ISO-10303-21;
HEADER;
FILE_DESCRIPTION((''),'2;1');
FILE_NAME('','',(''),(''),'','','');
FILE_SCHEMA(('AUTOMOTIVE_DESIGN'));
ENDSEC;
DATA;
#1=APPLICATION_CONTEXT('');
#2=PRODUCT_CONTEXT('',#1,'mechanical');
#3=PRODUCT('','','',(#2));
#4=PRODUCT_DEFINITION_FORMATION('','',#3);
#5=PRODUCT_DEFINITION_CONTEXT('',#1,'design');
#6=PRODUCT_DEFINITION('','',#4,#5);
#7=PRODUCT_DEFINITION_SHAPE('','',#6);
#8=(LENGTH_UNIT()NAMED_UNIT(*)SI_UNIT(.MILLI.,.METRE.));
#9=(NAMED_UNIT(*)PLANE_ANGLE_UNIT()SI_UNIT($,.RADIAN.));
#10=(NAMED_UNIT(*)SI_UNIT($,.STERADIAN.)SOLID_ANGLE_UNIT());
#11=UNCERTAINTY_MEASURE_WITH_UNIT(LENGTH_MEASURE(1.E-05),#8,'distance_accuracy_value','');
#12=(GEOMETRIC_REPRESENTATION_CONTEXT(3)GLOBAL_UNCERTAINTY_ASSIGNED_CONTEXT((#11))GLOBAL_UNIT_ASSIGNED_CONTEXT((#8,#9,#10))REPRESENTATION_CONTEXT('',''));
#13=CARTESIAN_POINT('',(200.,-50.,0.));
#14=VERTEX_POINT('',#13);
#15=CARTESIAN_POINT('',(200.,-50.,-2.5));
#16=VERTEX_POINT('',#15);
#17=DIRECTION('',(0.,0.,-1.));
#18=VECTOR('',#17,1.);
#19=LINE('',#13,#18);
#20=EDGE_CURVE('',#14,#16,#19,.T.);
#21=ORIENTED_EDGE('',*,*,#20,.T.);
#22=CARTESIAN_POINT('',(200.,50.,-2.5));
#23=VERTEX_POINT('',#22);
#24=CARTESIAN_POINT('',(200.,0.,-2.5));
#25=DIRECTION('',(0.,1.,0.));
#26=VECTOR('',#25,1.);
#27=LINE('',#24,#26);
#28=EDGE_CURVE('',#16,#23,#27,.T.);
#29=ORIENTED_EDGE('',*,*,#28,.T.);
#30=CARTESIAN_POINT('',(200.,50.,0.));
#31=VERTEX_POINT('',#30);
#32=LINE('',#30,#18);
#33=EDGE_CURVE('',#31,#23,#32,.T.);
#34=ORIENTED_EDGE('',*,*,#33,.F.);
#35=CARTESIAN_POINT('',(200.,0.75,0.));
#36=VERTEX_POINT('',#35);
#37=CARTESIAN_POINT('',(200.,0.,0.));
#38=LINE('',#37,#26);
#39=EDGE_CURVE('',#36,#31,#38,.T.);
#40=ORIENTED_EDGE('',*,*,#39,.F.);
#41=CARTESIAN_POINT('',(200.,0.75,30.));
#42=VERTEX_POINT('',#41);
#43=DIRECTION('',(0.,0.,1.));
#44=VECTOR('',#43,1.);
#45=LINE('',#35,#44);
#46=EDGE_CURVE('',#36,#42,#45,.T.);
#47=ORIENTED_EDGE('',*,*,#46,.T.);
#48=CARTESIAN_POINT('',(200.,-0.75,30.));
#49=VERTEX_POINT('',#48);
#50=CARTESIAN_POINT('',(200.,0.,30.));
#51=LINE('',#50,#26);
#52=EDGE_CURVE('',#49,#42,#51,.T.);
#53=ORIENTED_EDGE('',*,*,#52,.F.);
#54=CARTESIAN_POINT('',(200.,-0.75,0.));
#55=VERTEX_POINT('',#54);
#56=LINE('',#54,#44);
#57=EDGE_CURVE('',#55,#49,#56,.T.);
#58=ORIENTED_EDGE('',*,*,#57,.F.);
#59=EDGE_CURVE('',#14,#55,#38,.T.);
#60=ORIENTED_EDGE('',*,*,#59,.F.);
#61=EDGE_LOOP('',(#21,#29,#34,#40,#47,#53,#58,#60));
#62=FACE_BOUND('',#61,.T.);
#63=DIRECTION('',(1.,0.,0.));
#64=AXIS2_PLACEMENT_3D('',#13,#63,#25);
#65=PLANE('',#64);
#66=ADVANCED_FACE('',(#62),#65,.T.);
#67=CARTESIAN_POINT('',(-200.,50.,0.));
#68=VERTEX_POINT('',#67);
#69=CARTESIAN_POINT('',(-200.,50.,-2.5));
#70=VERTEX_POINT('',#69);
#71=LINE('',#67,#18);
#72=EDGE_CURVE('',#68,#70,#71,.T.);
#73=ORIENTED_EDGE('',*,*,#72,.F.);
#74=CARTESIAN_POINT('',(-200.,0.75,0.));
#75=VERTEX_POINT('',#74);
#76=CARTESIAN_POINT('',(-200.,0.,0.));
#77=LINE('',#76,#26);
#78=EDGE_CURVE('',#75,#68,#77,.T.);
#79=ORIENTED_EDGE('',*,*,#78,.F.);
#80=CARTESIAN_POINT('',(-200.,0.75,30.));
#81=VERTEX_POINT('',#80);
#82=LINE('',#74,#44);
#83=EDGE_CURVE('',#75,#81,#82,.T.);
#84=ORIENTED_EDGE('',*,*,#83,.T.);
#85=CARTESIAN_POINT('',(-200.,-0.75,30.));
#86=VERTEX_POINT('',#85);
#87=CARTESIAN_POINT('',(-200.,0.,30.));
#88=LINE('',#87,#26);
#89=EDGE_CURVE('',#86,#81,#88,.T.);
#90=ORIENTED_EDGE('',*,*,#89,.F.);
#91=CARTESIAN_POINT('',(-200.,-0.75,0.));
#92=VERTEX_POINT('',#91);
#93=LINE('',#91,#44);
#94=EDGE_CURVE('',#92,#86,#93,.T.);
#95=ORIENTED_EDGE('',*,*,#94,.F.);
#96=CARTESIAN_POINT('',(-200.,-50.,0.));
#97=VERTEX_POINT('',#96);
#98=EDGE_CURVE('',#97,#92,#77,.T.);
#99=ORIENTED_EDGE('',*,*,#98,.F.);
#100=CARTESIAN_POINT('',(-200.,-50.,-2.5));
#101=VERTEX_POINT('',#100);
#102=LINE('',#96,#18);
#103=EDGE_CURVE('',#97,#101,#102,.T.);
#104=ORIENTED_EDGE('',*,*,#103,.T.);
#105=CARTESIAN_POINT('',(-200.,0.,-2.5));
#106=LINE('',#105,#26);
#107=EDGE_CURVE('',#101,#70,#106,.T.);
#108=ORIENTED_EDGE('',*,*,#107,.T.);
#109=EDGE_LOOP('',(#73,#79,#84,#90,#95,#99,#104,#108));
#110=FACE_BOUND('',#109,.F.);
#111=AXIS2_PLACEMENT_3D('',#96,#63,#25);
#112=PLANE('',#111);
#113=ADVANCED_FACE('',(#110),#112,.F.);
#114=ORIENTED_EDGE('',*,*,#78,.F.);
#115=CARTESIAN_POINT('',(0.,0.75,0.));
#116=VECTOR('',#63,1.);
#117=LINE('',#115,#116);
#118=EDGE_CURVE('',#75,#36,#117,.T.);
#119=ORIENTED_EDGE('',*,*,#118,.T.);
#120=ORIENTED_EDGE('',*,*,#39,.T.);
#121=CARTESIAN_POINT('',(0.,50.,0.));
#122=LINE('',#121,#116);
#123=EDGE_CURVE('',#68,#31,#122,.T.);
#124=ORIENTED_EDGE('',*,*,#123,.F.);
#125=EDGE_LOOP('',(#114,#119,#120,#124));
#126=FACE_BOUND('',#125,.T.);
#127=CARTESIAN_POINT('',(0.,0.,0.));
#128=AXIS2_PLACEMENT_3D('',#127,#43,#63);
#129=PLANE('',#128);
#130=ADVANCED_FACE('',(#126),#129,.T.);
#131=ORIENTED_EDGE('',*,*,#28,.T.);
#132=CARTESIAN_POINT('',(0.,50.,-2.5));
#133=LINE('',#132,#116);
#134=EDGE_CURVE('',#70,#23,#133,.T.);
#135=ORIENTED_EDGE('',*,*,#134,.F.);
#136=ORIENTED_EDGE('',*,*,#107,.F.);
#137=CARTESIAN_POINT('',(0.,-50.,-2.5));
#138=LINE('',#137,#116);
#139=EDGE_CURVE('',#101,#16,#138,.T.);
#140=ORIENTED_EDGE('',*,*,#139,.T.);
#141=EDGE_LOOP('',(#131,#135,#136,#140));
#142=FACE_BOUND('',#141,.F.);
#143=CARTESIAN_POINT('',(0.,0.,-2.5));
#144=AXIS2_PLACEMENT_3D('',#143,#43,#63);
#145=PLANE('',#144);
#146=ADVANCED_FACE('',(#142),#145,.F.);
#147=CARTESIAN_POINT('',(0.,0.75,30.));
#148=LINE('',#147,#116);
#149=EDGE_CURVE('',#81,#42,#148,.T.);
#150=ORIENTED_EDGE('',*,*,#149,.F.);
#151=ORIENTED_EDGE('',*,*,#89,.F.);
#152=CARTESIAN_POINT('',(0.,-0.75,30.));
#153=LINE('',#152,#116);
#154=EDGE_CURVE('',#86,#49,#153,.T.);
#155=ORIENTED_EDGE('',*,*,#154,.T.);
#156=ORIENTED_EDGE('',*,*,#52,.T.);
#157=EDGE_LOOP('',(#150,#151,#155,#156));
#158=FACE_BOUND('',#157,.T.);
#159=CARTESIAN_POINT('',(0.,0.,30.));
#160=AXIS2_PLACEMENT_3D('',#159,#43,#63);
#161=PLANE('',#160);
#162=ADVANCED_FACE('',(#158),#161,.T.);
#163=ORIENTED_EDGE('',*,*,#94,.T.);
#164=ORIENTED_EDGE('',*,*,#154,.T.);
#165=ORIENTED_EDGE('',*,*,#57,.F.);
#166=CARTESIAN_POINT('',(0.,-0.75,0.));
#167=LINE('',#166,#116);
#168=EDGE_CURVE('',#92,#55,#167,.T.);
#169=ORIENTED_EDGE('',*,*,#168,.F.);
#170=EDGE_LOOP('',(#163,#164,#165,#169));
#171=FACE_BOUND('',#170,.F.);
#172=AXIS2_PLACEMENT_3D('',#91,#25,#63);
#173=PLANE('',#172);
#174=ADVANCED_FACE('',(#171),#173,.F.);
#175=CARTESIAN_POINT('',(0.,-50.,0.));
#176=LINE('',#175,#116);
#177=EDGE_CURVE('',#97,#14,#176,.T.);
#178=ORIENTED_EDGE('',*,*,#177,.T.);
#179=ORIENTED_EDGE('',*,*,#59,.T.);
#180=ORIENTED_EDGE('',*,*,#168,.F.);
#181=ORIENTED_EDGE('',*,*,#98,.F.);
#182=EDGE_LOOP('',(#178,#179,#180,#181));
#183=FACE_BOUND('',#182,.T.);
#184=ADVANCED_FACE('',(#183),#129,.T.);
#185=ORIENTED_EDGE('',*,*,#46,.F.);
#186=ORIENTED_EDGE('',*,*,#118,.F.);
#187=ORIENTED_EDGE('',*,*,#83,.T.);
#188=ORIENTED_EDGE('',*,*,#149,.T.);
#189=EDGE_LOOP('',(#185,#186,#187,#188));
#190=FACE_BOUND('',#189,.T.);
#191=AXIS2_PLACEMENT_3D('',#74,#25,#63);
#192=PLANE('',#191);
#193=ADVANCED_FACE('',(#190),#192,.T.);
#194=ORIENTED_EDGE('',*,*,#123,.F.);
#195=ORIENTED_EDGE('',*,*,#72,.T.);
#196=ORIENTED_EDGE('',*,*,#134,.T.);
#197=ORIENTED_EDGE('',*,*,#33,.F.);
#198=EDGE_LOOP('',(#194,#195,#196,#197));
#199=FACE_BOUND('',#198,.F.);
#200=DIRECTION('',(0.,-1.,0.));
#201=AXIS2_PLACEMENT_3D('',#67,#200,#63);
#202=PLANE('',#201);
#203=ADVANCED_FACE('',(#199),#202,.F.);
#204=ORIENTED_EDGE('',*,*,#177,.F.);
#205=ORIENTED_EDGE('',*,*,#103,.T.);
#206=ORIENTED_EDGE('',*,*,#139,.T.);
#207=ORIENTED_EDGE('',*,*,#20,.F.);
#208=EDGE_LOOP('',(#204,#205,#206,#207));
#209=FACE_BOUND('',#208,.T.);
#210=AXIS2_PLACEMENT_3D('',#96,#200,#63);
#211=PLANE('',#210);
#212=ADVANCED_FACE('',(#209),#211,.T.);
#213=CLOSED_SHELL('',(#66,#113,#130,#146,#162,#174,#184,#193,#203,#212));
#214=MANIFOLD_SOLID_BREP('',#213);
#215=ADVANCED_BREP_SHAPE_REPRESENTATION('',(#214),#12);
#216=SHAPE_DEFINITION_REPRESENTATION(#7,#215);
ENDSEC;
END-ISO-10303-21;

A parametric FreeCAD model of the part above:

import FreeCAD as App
import Part
import Sketcher

doc = App.newDocument("Part")
params = doc.addObject("Spreadsheet::Sheet", "Params")
for row, (alias, value) in enumerate([
    ("sketch1_width", "400 mm"),
    ("sketch1_height", "100 mm"),
    ("pad1_length", "2.5 mm"),
    ("sketch2_width", "400 mm"),
    ("sketch2_height", "1.5 mm"),
    ("pad2_length", "30 mm"),
], start=1):
    params.set(f"A{row}", alias)
    params.set(f"B{row}", "=" + value)
    params.setAlias(f"B{row}", alias)

body = doc.addObject("PartDesign::Body", "Body")

sketch1 = body.newObject("Sketcher::SketchObject", "Sketch")
sketch1.AttachmentSupport = (doc.getObject("XY_Plane"), [""])
sketch1.MapMode = "FlatFace"
sketch1.addGeometry([
    Part.LineSegment(App.Vector(-200, 50, 0), App.Vector(-200, -50, 0)),
    Part.LineSegment(App.Vector(-200, -50, 0), App.Vector(200, -50, 0)),
    Part.LineSegment(App.Vector(200, -50, 0), App.Vector(200, 50, 0)),
    Part.LineSegment(App.Vector(200, 50, 0), App.Vector(-200, 50, 0)),
], False)
sketch1.addConstraint([
    Sketcher.Constraint("Coincident", 0, 2, 1, 1),
    Sketcher.Constraint("Coincident", 1, 2, 2, 1),
    Sketcher.Constraint("Coincident", 2, 2, 3, 1),
    Sketcher.Constraint("Coincident", 3, 2, 0, 1),
    Sketcher.Constraint("Vertical", 0),
    Sketcher.Constraint("Horizontal", 1),
    Sketcher.Constraint("Vertical", 2),
    Sketcher.Constraint("Horizontal", 3),
    Sketcher.Constraint("Symmetric", 0, 2, 2, 2, -1, 1),
    Sketcher.Constraint("DistanceX", 1, 1, 1, 2, 400.0),
    Sketcher.Constraint("DistanceY", 0, 2, 0, 1, 100.0),
])
sketch1.setExpression("Constraints[9]", "Params.sketch1_width")
sketch1.setExpression("Constraints[10]", "Params.sketch1_height")
pad1 = body.newObject("PartDesign::Pad", "Pad")
pad1.Profile = sketch1
pad1.setExpression("Length", "Params.pad1_length")
pad1.Reversed = True

sketch2 = body.newObject("Sketcher::SketchObject", "Sketch001")
sketch2.AttachmentSupport = (doc.getObject("XY_Plane"), [""])
sketch2.MapMode = "FlatFace"
sketch2.addGeometry([
    Part.LineSegment(App.Vector(-200, 0.8, 0), App.Vector(-200, -0.8, 0)),
    Part.LineSegment(App.Vector(-200, -0.8, 0), App.Vector(200, -0.8, 0)),
    Part.LineSegment(App.Vector(200, -0.8, 0), App.Vector(200, 0.8, 0)),
    Part.LineSegment(App.Vector(200, 0.8, 0), App.Vector(-200, 0.8, 0)),
], False)
sketch2.addConstraint([
    Sketcher.Constraint("Coincident", 0, 2, 1, 1),
    Sketcher.Constraint("Coincident", 1, 2, 2, 1),
    Sketcher.Constraint("Coincident", 2, 2, 3, 1),
    Sketcher.Constraint("Coincident", 3, 2, 0, 1),
    Sketcher.Constraint("Vertical", 0),
    Sketcher.Constraint("Horizontal", 1),
    Sketcher.Constraint("Vertical", 2),
    Sketcher.Constraint("Horizontal", 3),
    Sketcher.Constraint("Symmetric", 0, 2, 2, 2, -1, 1),
    Sketcher.Constraint("DistanceX", 1, 1, 1, 2, 400.0),
    Sketcher.Constraint("DistanceY", 0, 2, 0, 1, 1.5),
])
sketch2.setExpression("Constraints[9]", "Params.sketch2_width")
sketch2.setExpression("Constraints[10]", "Params.sketch2_height")
pad2 = body.newObject("PartDesign::Pad", "Pad001")
pad2.Profile = sketch2
pad2.setExpression("Length", "Params.pad2_length")

doc.recompute()
